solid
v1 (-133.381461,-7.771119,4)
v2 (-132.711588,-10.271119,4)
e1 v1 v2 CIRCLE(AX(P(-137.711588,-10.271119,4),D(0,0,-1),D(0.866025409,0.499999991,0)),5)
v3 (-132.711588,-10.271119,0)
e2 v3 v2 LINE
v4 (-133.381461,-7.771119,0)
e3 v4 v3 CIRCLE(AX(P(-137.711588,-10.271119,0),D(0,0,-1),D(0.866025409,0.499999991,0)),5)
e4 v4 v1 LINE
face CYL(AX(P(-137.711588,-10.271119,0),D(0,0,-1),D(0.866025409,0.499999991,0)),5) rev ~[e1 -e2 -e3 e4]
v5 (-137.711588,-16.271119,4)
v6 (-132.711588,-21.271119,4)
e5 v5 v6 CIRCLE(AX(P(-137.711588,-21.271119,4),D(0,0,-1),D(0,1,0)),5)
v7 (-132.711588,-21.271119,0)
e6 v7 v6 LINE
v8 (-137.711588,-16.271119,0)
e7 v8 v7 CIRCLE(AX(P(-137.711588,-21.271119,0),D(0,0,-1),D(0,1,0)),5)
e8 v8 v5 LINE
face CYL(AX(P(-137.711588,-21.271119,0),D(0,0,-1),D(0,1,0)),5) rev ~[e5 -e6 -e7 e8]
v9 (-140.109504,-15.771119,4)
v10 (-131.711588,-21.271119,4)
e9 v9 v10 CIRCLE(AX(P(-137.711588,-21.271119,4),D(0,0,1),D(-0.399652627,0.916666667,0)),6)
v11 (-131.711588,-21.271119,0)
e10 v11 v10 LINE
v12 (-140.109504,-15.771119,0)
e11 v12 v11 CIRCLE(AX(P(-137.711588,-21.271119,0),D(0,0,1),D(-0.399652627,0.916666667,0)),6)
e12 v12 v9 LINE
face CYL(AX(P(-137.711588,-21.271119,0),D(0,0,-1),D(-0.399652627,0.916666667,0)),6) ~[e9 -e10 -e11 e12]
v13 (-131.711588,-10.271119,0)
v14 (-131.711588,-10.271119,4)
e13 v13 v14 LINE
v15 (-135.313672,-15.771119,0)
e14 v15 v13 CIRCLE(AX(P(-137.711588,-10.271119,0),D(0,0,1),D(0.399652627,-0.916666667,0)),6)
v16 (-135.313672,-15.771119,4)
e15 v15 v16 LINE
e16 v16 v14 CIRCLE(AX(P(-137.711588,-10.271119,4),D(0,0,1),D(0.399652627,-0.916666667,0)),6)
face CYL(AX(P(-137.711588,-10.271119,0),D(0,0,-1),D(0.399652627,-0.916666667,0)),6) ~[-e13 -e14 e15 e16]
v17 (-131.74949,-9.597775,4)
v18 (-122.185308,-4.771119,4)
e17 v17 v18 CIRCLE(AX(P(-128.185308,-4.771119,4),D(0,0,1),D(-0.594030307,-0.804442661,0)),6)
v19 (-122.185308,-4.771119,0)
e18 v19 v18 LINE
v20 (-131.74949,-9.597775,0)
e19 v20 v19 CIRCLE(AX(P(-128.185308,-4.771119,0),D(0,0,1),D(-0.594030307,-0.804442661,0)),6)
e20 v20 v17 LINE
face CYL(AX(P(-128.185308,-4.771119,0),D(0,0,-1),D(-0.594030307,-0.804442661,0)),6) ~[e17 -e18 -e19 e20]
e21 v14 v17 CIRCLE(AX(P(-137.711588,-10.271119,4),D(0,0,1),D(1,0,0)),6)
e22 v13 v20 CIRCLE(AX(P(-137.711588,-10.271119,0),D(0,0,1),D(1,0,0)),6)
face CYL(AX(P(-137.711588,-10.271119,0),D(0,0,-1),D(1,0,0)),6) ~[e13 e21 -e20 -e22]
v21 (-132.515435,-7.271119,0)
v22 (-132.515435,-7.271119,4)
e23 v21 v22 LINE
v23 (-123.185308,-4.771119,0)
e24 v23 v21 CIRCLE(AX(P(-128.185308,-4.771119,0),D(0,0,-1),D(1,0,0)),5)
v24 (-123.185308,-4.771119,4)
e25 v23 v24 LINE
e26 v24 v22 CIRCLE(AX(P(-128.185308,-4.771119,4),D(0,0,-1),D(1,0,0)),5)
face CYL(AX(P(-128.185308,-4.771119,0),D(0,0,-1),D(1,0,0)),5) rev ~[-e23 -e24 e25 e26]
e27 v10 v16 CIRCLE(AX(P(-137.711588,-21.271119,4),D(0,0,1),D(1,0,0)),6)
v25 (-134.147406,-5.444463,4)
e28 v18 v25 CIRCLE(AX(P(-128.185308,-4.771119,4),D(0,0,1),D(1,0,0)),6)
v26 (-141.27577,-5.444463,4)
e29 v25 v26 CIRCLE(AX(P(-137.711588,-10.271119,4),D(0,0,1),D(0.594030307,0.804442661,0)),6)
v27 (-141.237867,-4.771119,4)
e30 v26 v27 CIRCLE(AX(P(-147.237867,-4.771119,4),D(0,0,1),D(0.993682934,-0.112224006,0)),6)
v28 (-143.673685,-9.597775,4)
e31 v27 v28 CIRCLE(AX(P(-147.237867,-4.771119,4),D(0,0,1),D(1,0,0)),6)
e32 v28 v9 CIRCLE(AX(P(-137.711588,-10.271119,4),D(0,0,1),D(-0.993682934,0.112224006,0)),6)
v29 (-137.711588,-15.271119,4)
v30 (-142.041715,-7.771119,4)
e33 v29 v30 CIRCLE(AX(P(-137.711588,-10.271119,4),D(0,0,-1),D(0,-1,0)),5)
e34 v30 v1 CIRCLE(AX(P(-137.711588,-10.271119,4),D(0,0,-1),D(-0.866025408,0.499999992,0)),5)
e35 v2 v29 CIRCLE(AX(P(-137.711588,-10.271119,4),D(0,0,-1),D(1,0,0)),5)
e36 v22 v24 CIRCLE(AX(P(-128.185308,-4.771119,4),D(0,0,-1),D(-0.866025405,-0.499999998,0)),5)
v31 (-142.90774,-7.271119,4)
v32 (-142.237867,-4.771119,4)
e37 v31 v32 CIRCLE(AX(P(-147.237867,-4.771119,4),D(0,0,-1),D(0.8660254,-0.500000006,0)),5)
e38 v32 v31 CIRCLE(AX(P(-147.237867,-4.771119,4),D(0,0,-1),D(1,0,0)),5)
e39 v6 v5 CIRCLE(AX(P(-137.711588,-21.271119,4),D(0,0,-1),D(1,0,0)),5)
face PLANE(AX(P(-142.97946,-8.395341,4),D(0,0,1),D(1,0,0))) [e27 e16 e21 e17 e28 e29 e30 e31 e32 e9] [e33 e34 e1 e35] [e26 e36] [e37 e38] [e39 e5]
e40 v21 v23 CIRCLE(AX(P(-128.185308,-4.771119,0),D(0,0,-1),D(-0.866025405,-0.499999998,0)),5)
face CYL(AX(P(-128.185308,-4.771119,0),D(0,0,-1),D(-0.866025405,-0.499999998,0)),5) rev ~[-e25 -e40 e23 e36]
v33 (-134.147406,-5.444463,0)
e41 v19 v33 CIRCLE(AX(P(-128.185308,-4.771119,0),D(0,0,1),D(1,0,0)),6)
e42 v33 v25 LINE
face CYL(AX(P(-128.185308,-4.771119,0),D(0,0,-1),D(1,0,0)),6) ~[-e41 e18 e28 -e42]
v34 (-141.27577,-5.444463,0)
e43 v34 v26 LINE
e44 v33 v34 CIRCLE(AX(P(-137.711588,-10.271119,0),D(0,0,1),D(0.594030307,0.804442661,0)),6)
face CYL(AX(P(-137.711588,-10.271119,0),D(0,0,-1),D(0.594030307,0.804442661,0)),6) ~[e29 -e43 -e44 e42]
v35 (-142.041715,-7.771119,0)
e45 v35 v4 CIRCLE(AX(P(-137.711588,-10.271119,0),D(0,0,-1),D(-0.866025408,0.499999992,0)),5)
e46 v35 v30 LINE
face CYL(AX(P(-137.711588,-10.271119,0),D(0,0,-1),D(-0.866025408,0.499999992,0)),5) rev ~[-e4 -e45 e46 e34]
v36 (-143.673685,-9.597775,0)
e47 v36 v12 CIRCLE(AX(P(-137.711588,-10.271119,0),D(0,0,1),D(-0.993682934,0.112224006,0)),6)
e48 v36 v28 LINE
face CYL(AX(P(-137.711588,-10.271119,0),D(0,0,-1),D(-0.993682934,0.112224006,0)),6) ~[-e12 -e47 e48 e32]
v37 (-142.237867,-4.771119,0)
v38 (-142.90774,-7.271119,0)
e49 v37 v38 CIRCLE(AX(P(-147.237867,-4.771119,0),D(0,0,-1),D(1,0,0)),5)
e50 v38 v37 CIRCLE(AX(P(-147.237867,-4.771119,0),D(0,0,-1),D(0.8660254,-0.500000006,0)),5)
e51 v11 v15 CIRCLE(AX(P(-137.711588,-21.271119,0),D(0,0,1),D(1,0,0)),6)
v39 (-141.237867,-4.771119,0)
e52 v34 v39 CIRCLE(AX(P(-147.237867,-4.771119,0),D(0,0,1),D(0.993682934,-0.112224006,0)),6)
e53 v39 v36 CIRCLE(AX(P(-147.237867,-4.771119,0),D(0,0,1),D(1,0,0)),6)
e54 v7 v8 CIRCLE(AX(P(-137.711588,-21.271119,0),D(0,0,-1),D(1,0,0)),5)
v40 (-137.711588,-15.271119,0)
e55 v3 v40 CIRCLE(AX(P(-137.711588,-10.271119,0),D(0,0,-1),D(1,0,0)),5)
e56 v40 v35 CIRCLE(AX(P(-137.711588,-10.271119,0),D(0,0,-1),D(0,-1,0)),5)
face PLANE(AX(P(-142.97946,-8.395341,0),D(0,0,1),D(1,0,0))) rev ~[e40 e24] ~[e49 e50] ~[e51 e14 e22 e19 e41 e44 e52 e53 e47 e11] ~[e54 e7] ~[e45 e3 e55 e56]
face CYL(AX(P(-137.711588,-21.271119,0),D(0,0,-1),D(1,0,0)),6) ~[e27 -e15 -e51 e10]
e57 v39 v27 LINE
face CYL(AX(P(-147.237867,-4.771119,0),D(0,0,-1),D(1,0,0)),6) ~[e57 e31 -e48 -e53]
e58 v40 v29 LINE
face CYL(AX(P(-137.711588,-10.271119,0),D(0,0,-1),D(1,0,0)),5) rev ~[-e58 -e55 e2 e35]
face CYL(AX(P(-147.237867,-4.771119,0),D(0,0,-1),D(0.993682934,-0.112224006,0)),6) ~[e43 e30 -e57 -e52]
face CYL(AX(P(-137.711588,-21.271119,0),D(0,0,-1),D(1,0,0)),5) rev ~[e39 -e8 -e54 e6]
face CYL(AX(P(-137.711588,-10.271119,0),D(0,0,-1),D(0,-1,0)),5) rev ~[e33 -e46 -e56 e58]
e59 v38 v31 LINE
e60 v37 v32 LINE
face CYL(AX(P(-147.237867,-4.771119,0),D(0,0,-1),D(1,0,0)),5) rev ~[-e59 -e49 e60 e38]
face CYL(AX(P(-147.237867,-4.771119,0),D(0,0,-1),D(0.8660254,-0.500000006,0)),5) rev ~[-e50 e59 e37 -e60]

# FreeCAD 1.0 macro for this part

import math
import FreeCAD as App
import Part
import Sketcher

doc = App.newDocument("Part")
body = doc.addObject("PartDesign::Body", "Body")

# Sketch on XY plane
sketch1 = body.newObject("Sketcher::SketchObject", "Sketch")
sketch1.AttachmentSupport = (doc.getObject("XY_Plane"), [""])
sketch1.MapMode = "FlatFace"
sketch1.addGeometry([
    Part.ArcOfCircle(Part.Circle(App.Vector(-137.711588, -10.271119, 0), App.Vector(0, 0, 1), 6), math.radians(53.556464), math.radians(126.443536)),  # 0
    Part.ArcOfCircle(Part.Circle(App.Vector(-147.237867, -4.771119, 0), App.Vector(0, 0, 1), 6), math.radians(-6.443536), math.radians(0)),  # 1
    Part.ArcOfCircle(Part.Circle(App.Vector(-147.237867, -4.771119, 0), App.Vector(0, 0, 1), 6), math.radians(0), math.radians(306.443536)),  # 2
    Part.ArcOfCircle(Part.Circle(App.Vector(-137.711588, -10.271119, 0), App.Vector(0, 0, 1), 6), math.radians(173.556464), math.radians(246.443536)),  # 3
    Part.ArcOfCircle(Part.Circle(App.Vector(-137.711588, -21.271119, 0), App.Vector(0, 0, 1), 6), math.radians(113.556464), math.radians(360)),  # 4
    Part.ArcOfCircle(Part.Circle(App.Vector(-137.711588, -21.271119, 0), App.Vector(0, 0, 1), 6), math.radians(0), math.radians(66.443536)),  # 5
    Part.ArcOfCircle(Part.Circle(App.Vector(-137.711588, -10.271119, 0), App.Vector(0, 0, 1), 6), math.radians(-66.443536), math.radians(0)),  # 6
    Part.ArcOfCircle(Part.Circle(App.Vector(-137.711588, -10.271119, 0), App.Vector(0, 0, 1), 6), math.radians(0), math.radians(6.443536)),  # 7
    Part.ArcOfCircle(Part.Circle(App.Vector(-128.185308, -4.771119, 0), App.Vector(0, 0, 1), 6), math.radians(-126.443536), math.radians(0)),  # 8
    Part.ArcOfCircle(Part.Circle(App.Vector(-128.185308, -4.771119, 0), App.Vector(0, 0, 1), 6), math.radians(0), math.radians(186.443536)),  # 9
    Part.ArcOfCircle(Part.Circle(App.Vector(-137.711588, -21.271119, 0), App.Vector(0, 0, 1), 5), math.radians(0), math.radians(90)),  # 10
    Part.ArcOfCircle(Part.Circle(App.Vector(-137.711588, -21.271119, 0), App.Vector(0, 0, 1), 5), math.radians(90), math.radians(360)),  # 11
    Part.ArcOfCircle(Part.Circle(App.Vector(-147.237867, -4.771119, 0), App.Vector(0, 0, 1), 5), math.radians(0), math.radians(330)),  # 12
    Part.ArcOfCircle(Part.Circle(App.Vector(-147.237867, -4.771119, 0), App.Vector(0, 0, 1), 5), math.radians(-30), math.radians(0)),  # 13
    Part.ArcOfCircle(Part.Circle(App.Vector(-137.711588, -10.271119, 0), App.Vector(0, 0, 1), 5), math.radians(29.999999), math.radians(150.000001)),  # 14
    Part.ArcOfCircle(Part.Circle(App.Vector(-137.711588, -10.271119, 0), App.Vector(0, 0, 1), 5), math.radians(0), math.radians(29.999999)),  # 15
    Part.ArcOfCircle(Part.Circle(App.Vector(-137.711588, -10.271119, 0), App.Vector(0, 0, 1), 5), math.radians(-90), math.radians(0)),  # 16
    Part.ArcOfCircle(Part.Circle(App.Vector(-137.711588, -10.271119, 0), App.Vector(0, 0, 1), 5), math.radians(150.000001), math.radians(270)),  # 17
    Part.ArcOfCircle(Part.Circle(App.Vector(-128.185308, -4.771119, 0), App.Vector(0, 0, 1), 5), math.radians(0), math.radians(210)),  # 18
    Part.ArcOfCircle(Part.Circle(App.Vector(-128.185308, -4.771119, 0), App.Vector(0, 0, 1), 5), math.radians(-150), math.radians(0)),  # 19
], False)
sketch1.addConstraint([
    Sketcher.Constraint("Coincident", 0, 2, 1, 1),
    Sketcher.Constraint("Tangent", 1, 2, 2, 1),
    Sketcher.Constraint("Coincident", 2, 2, 3, 1),
    Sketcher.Constraint("Coincident", 3, 2, 4, 1),
    Sketcher.Constraint("Tangent", 4, 2, 5, 1),
    Sketcher.Constraint("Coincident", 5, 2, 6, 1),
    Sketcher.Constraint("Tangent", 6, 2, 7, 1),
    Sketcher.Constraint("Coincident", 7, 2, 8, 1),
    Sketcher.Constraint("Tangent", 8, 2, 9, 1),
    Sketcher.Constraint("Coincident", 9, 2, 0, 1),
    Sketcher.Constraint("Tangent", 10, 1, 11, 2),
    Sketcher.Constraint("Coincident", 11, 1, 10, 2),
    Sketcher.Constraint("Tangent", 12, 1, 13, 2),
    Sketcher.Constraint("Coincident", 13, 1, 12, 2),
    Sketcher.Constraint("Tangent", 14, 1, 15, 2),
    Sketcher.Constraint("Tangent", 15, 1, 16, 2),
    Sketcher.Constraint("Tangent", 16, 1, 17, 2),
    Sketcher.Constraint("Tangent", 17, 1, 14, 2),
    Sketcher.Constraint("Tangent", 18, 1, 19, 2),
    Sketcher.Constraint("Coincident", 19, 1, 18, 2),
    Sketcher.Constraint("Coincident", 3, 3, 0, 3),
    Sketcher.Constraint("Coincident", 6, 3, 0, 3),
    Sketcher.Constraint("Coincident", 10, 3, 4, 3),
    Sketcher.Constraint("Coincident", 12, 3, 1, 3),
    Sketcher.Constraint("Coincident", 14, 3, 0, 3),
    Sketcher.Constraint("Coincident", 18, 3, 8, 3),
    Sketcher.Constraint("Equal", 0, 1),
    Sketcher.Constraint("Equal", 1, 2),
    Sketcher.Constraint("Equal", 2, 3),
    Sketcher.Constraint("Equal", 3, 4),
    Sketcher.Constraint("Equal", 4, 5),
    Sketcher.Constraint("Equal", 5, 6),
    Sketcher.Constraint("Equal", 6, 7),
    Sketcher.Constraint("Equal", 7, 8),
    Sketcher.Constraint("Equal", 8, 9),
    Sketcher.Constraint("Equal", 11, 12),
    Sketcher.Constraint("Equal", 13, 14),
    Sketcher.Constraint("Equal", 14, 15),
    Sketcher.Constraint("Equal", 17, 18),
    Sketcher.Constraint("Horizontal", 2, 3, 8, 3),
    Sketcher.Constraint("Horizontal", 19, 3, 1, 2),
    Sketcher.Constraint("Horizontal", 11, 3, 4, 2),
    Sketcher.Constraint("Horizontal", 3, 2, 5, 2),
    Sketcher.Constraint("Horizontal", 17, 3, 6, 2),
    Sketcher.Constraint("Horizontal", 2, 2, 7, 2),
    Sketcher.Constraint("Horizontal", 1, 2, 8, 2),
    Sketcher.Constraint("Horizontal", 4, 2, 10, 1),
    Sketcher.Constraint("Horizontal", 8, 2, 12, 1),
    Sketcher.Constraint("Horizontal", 6, 2, 15, 1),
    Sketcher.Constraint("Horizontal", 14, 1, 17, 1),
    Sketcher.Constraint("Horizontal", 12, 1, 18, 1),
    Sketcher.Constraint("Horizontal", 13, 1, 19, 1),
    Sketcher.Constraint("Vertical", 17, 3, 11, 1),
    Sketcher.Constraint("Vertical", 11, 1, 16, 1),
    Sketcher.Constraint("Radius", 0, 6.0),
    Sketcher.Constraint("Radius", 10, 5.0),
    Sketcher.Constraint("DistanceY", 4, 3, 0, 3, 11.0),
    Sketcher.Constraint("DistanceY", 17, 1, 12, 1, 3.0),
    Sketcher.Constraint("DistanceY", 15, 1, 19, 1, 3.0),
    Sketcher.Constraint("DistanceY", 0, 3, 1, 3, 5.5),
    Sketcher.Constraint("DistanceY", 0, 3, -1, 1, 10.271119),
    Sketcher.Constraint("DistanceX", 8, 3, -1, 1, 128.185308),
    Sketcher.Constraint("DistanceX", 0, 2, -1, 1, 141.27577),
])
pad1 = body.newObject("PartDesign::Pad", "Pad")
pad1.Profile = sketch1
pad1.Length = 4

doc.recompute()
